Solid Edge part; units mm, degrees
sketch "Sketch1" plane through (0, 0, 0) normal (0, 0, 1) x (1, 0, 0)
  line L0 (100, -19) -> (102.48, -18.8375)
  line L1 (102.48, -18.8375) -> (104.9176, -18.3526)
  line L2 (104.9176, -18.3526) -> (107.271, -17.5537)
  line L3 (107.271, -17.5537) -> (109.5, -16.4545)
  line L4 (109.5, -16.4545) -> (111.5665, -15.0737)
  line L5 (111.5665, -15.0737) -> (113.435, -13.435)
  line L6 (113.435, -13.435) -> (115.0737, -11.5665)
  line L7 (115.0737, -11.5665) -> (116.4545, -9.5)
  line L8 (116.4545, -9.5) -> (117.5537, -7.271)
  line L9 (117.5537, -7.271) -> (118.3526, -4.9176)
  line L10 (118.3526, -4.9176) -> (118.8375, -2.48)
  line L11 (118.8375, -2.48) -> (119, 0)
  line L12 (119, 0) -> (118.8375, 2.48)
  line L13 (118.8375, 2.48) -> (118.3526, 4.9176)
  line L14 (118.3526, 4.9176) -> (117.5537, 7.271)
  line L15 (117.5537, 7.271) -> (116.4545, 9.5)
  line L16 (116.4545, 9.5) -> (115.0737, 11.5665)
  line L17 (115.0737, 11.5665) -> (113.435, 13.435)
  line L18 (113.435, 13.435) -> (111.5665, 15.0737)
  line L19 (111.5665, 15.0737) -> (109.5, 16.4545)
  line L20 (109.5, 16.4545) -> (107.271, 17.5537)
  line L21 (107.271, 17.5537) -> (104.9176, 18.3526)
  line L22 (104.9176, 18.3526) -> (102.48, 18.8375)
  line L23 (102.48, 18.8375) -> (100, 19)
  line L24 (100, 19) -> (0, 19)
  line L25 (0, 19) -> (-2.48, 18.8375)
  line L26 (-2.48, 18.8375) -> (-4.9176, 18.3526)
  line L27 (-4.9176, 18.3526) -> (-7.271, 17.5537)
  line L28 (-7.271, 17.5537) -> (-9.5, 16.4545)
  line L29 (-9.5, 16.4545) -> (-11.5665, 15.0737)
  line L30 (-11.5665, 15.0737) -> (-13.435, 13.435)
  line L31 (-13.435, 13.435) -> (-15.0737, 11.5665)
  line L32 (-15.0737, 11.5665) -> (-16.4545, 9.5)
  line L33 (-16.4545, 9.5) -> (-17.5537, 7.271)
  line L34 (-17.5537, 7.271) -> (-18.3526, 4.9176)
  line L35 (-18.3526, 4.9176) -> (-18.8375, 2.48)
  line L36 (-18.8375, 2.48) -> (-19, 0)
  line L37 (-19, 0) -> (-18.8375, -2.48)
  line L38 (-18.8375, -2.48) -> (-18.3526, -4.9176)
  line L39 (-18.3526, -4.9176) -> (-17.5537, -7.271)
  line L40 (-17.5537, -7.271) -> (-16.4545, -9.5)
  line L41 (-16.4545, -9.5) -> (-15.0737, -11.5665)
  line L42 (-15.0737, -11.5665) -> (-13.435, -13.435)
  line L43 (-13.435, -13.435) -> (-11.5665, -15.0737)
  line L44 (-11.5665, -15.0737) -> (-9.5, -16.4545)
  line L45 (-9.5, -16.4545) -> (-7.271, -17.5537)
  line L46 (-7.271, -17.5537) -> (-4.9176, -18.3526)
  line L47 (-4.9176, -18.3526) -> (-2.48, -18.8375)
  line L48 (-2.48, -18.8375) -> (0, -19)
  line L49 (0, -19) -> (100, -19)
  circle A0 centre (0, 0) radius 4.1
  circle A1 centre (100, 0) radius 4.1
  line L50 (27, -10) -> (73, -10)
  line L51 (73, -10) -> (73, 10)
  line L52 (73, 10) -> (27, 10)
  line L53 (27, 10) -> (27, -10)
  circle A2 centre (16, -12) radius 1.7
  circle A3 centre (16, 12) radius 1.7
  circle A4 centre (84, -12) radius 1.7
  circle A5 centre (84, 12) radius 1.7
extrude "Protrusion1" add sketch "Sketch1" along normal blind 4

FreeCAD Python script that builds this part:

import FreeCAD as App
import Part
import Sketcher

V = App.Vector
Q = App.Units.Quantity

doc = App.newDocument("Part")
body = doc.addObject("PartDesign::Body", "Body")

# Sketch on XY plane
sketch1 = body.newObject("Sketcher::SketchObject", "Sketch")
sketch1.AttachmentSupport = (doc.getObject("XY_Plane"), [""])
sketch1.MapMode = "FlatFace"
sketch1.addGeometry(Part.LineSegment(V(0, -19, 0), V(100, -19, 0)), False)
sketch1.addGeometry(Part.LineSegment(V(100, -19, 0), V(102.48, -18.8375, 0)), False)
sketch1.addGeometry(Part.LineSegment(V(102.48, -18.8375, 0), V(104.9176, -18.3526, 0)), False)
sketch1.addGeometry(Part.LineSegment(V(104.9176, -18.3526, 0), V(107.271, -17.5537, 0)), False)
sketch1.addGeometry(Part.LineSegment(V(107.271, -17.5537, 0), V(109.5, -16.4545, 0)), False)
sketch1.addGeometry(Part.LineSegment(V(109.5, -16.4545, 0), V(111.5665, -15.0737, 0)), False)
sketch1.addGeometry(Part.LineSegment(V(111.5665, -15.0737, 0), V(113.435, -13.435, 0)), False)
sketch1.addGeometry(Part.LineSegment(V(113.435, -13.435, 0), V(115.0737, -11.5665, 0)), False)
sketch1.addGeometry(Part.LineSegment(V(115.0737, -11.5665, 0), V(116.4545, -9.5, 0)), False)
sketch1.addGeometry(Part.LineSegment(V(116.4545, -9.5, 0), V(117.5537, -7.271, 0)), False)
sketch1.addGeometry(Part.LineSegment(V(117.5537, -7.271, 0), V(118.3526, -4.9176, 0)), False)
sketch1.addGeometry(Part.LineSegment(V(118.3526, -4.9176, 0), V(118.8375, -2.48, 0)), False)
sketch1.addGeometry(Part.LineSegment(V(118.8375, -2.48, 0), V(119, 0, 0)), False)
sketch1.addGeometry(Part.LineSegment(V(119, 0, 0), V(118.8375, 2.48, 0)), False)
sketch1.addGeometry(Part.LineSegment(V(118.8375, 2.48, 0), V(118.3526, 4.9176, 0)), False)
sketch1.addGeometry(Part.LineSegment(V(118.3526, 4.9176, 0), V(117.5537, 7.271, 0)), False)
sketch1.addGeometry(Part.LineSegment(V(117.5537, 7.271, 0), V(116.4545, 9.5, 0)), False)
sketch1.addGeometry(Part.LineSegment(V(116.4545, 9.5, 0), V(115.0737, 11.5665, 0)), False)
sketch1.addGeometry(Part.LineSegment(V(115.0737, 11.5665, 0), V(113.435, 13.435, 0)), False)
sketch1.addGeometry(Part.LineSegment(V(113.435, 13.435, 0), V(111.5665, 15.0737, 0)), False)
sketch1.addGeometry(Part.LineSegment(V(111.5665, 15.0737, 0), V(109.5, 16.4545, 0)), False)
sketch1.addGeometry(Part.LineSegment(V(109.5, 16.4545, 0), V(107.271, 17.5537, 0)), False)
sketch1.addGeometry(Part.LineSegment(V(107.271, 17.5537, 0), V(104.9176, 18.3526, 0)), False)
sketch1.addGeometry(Part.LineSegment(V(104.9176, 18.3526, 0), V(102.48, 18.8375, 0)), False)
sketch1.addGeometry(Part.LineSegment(V(102.48, 18.8375, 0), V(100, 19, 0)), False)
sketch1.addGeometry(Part.LineSegment(V(100, 19, 0), V(0, 19, 0)), False)
sketch1.addGeometry(Part.LineSegment(V(0, 19, 0), V(-2.48, 18.8375, 0)), False)
sketch1.addGeometry(Part.LineSegment(V(-2.48, 18.8375, 0), V(-4.9176, 18.3526, 0)), False)
sketch1.addGeometry(Part.LineSegment(V(-4.9176, 18.3526, 0), V(-7.271, 17.5537, 0)), False)
sketch1.addGeometry(Part.LineSegment(V(-7.271, 17.5537, 0), V(-9.5, 16.4545, 0)), False)
sketch1.addGeometry(Part.LineSegment(V(-9.5, 16.4545, 0), V(-11.5665, 15.0737, 0)), False)
sketch1.addGeometry(Part.LineSegment(V(-11.5665, 15.0737, 0), V(-13.435, 13.435, 0)), False)
sketch1.addGeometry(Part.LineSegment(V(-13.435, 13.435, 0), V(-15.0737, 11.5665, 0)), False)
sketch1.addGeometry(Part.LineSegment(V(-15.0737, 11.5665, 0), V(-16.4545, 9.5, 0)), False)
sketch1.addGeometry(Part.LineSegment(V(-16.4545, 9.5, 0), V(-17.5537, 7.271, 0)), False)
sketch1.addGeometry(Part.LineSegment(V(-17.5537, 7.271, 0), V(-18.3526, 4.9176, 0)), False)
sketch1.addGeometry(Part.LineSegment(V(-18.3526, 4.9176, 0), V(-18.8375, 2.48, 0)), False)
sketch1.addGeometry(Part.LineSegment(V(-18.8375, 2.48, 0), V(-19, 0, 0)), False)
sketch1.addGeometry(Part.LineSegment(V(-19, 0, 0), V(-18.8375, -2.48, 0)), False)
sketch1.addGeometry(Part.LineSegment(V(-18.8375, -2.48, 0), V(-18.3526, -4.9176, 0)), False)
sketch1.addGeometry(Part.LineSegment(V(-18.3526, -4.9176, 0), V(-17.5537, -7.271, 0)), False)
sketch1.addGeometry(Part.LineSegment(V(-17.5537, -7.271, 0), V(-16.4545, -9.5, 0)), False)
sketch1.addGeometry(Part.LineSegment(V(-16.4545, -9.5, 0), V(-15.0737, -11.5665, 0)), False)
sketch1.addGeometry(Part.LineSegment(V(-15.0737, -11.5665, 0), V(-13.435, -13.435, 0)), False)
sketch1.addGeometry(Part.LineSegment(V(-13.435, -13.435, 0), V(-11.5665, -15.0737, 0)), False)
sketch1.addGeometry(Part.LineSegment(V(-11.5665, -15.0737, 0), V(-9.5, -16.4545, 0)), False)
sketch1.addGeometry(Part.LineSegment(V(-9.5, -16.4545, 0), V(-7.271, -17.5537, 0)), False)
sketch1.addGeometry(Part.LineSegment(V(-7.271, -17.5537, 0), V(-4.9176, -18.3526, 0)), False)
sketch1.addGeometry(Part.LineSegment(V(-4.9176, -18.3526, 0), V(-2.48, -18.8375, 0)), False)
sketch1.addGeometry(Part.LineSegment(V(-2.48, -18.8375, 0), V(0, -19, 0)), False)
sketch1.addGeometry(Part.Circle(V(16, -12, 0), V(0, 0, 1), 1.7), False)
sketch1.addGeometry(Part.Circle(V(84, -12, 0), V(0, 0, 1), 1.7), False)
sketch1.addGeometry(Part.Circle(V(0, 0, 0), V(0, 0, 1), 4.1), False)
sketch1.addGeometry(Part.Circle(V(16, 12, 0), V(0, 0, 1), 1.7), False)
sketch1.addGeometry(Part.LineSegment(V(73, -10, 0), V(27, -10, 0)), False)
sketch1.addGeometry(Part.LineSegment(V(27, -10, 0), V(27, 10, 0)), False)
sketch1.addGeometry(Part.LineSegment(V(27, 10, 0), V(73, 10, 0)), False)
sketch1.addGeometry(Part.LineSegment(V(73, 10, 0), V(73, -10, 0)), False)
sketch1.addGeometry(Part.Circle(V(100, 0, 0), V(0, 0, 1), 4.1), False)
sketch1.addGeometry(Part.Circle(V(84, 12, 0), V(0, 0, 1), 1.7), False)
sketch1.addConstraint(Sketcher.Constraint("Coincident", 0, 2, 1, 1))
sketch1.addConstraint(Sketcher.Constraint("Coincident", 1, 2, 2, 1))
sketch1.addConstraint(Sketcher.Constraint("Coincident", 2, 2, 3, 1))
sketch1.addConstraint(Sketcher.Constraint("Coincident", 3, 2, 4, 1))
sketch1.addConstraint(Sketcher.Constraint("Coincident", 4, 2, 5, 1))
sketch1.addConstraint(Sketcher.Constraint("Coincident", 5, 2, 6, 1))
sketch1.addConstraint(Sketcher.Constraint("Coincident", 6, 2, 7, 1))
sketch1.addConstraint(Sketcher.Constraint("Coincident", 7, 2, 8, 1))
sketch1.addConstraint(Sketcher.Constraint("Coincident", 8, 2, 9, 1))
sketch1.addConstraint(Sketcher.Constraint("Coincident", 9, 2, 10, 1))
sketch1.addConstraint(Sketcher.Constraint("Coincident", 10, 2, 11, 1))
sketch1.addConstraint(Sketcher.Constraint("Coincident", 11, 2, 12, 1))
sketch1.addConstraint(Sketcher.Constraint("Coincident", 12, 2, 13, 1))
sketch1.addConstraint(Sketcher.Constraint("Coincident", 13, 2, 14, 1))
sketch1.addConstraint(Sketcher.Constraint("Coincident", 14, 2, 15, 1))
sketch1.addConstraint(Sketcher.Constraint("Coincident", 15, 2, 16, 1))
sketch1.addConstraint(Sketcher.Constraint("Coincident", 16, 2, 17, 1))
sketch1.addConstraint(Sketcher.Constraint("Coincident", 17, 2, 18, 1))
sketch1.addConstraint(Sketcher.Constraint("Coincident", 18, 2, 19, 1))
sketch1.addConstraint(Sketcher.Constraint("Coincident", 19, 2, 20, 1))
sketch1.addConstraint(Sketcher.Constraint("Coincident", 20, 2, 21, 1))
sketch1.addConstraint(Sketcher.Constraint("Coincident", 21, 2, 22, 1))
sketch1.addConstraint(Sketcher.Constraint("Coincident", 22, 2, 23, 1))
sketch1.addConstraint(Sketcher.Constraint("Coincident", 23, 2, 24, 1))
sketch1.addConstraint(Sketcher.Constraint("Coincident", 24, 2, 25, 1))
sketch1.addConstraint(Sketcher.Constraint("Coincident", 25, 2, 26, 1))
sketch1.addConstraint(Sketcher.Constraint("Coincident", 26, 2, 27, 1))
sketch1.addConstraint(Sketcher.Constraint("Coincident", 27, 2, 28, 1))
sketch1.addConstraint(Sketcher.Constraint("Coincident", 28, 2, 29, 1))
sketch1.addConstraint(Sketcher.Constraint("Coincident", 29, 2, 30, 1))
sketch1.addConstraint(Sketcher.Constraint("Coincident", 30, 2, 31, 1))
sketch1.addConstraint(Sketcher.Constraint("Coincident", 31, 2, 32, 1))
sketch1.addConstraint(Sketcher.Constraint("Coincident", 32, 2, 33, 1))
sketch1.addConstraint(Sketcher.Constraint("Coincident", 33, 2, 34, 1))
sketch1.addConstraint(Sketcher.Constraint("Coincident", 34, 2, 35, 1))
sketch1.addConstraint(Sketcher.Constraint("Coincident", 35, 2, 36, 1))
sketch1.addConstraint(Sketcher.Constraint("Coincident", 36, 2, 37, 1))
sketch1.addConstraint(Sketcher.Constraint("Coincident", 37, 2, 38, 1))
sketch1.addConstraint(Sketcher.Constraint("Coincident", 38, 2, 39, 1))
sketch1.addConstraint(Sketcher.Constraint("Coincident", 39, 2, 40, 1))
sketch1.addConstraint(Sketcher.Constraint("Coincident", 40, 2, 41, 1))
sketch1.addConstraint(Sketcher.Constraint("Coincident", 41, 2, 42, 1))
sketch1.addConstraint(Sketcher.Constraint("Coincident", 42, 2, 43, 1))
sketch1.addConstraint(Sketcher.Constraint("Coincident", 43, 2, 44, 1))
sketch1.addConstraint(Sketcher.Constraint("Coincident", 44, 2, 45, 1))
sketch1.addConstraint(Sketcher.Constraint("Coincident", 45, 2, 46, 1))
sketch1.addConstraint(Sketcher.Constraint("Coincident", 46, 2, 47, 1))
sketch1.addConstraint(Sketcher.Constraint("Coincident", 47, 2, 48, 1))
sketch1.addConstraint(Sketcher.Constraint("Coincident", 48, 2, 49, 1))
sketch1.addConstraint(Sketcher.Constraint("Coincident", 49, 2, 0, 1))
sketch1.addConstraint(Sketcher.Constraint("Coincident", 54, 2, 55, 1))
sketch1.addConstraint(Sketcher.Constraint("Coincident", 55, 2, 56, 1))
sketch1.addConstraint(Sketcher.Constraint("Coincident", 56, 2, 57, 1))
sketch1.addConstraint(Sketcher.Constraint("Coincident", 57, 2, 54, 1))
sketch1.addConstraint(Sketcher.Constraint("Horizontal", 0))
sketch1.addConstraint(Sketcher.Constraint("Horizontal", 25))
sketch1.addConstraint(Sketcher.Constraint("Horizontal", 54))
sketch1.addConstraint(Sketcher.Constraint("Vertical", 55))
sketch1.addConstraint(Sketcher.Constraint("Horizontal", 56))
sketch1.addConstraint(Sketcher.Constraint("Vertical", 57))
sketch1.addConstraint(Sketcher.Constraint("Coincident", 52, 3, -1, 1))
sketch1.addConstraint(Sketcher.Constraint("Equal", 50, 51))
sketch1.addConstraint(Sketcher.Constraint("Equal", 51, 53))
sketch1.addConstraint(Sketcher.Constraint("Equal", 52, 58))
sketch1.addConstraint(Sketcher.Constraint("Equal", 53, 59))
sketch1.addConstraint(Sketcher.Constraint("Symmetric", 25, 2, 49, 2, -1, 1))
sketch1.addConstraint(Sketcher.Constraint("Symmetric", 50, 3, 53, 3, -1))
sketch1.addConstraint(Sketcher.Constraint("Symmetric", 51, 3, 59, 3, -1))
sketch1.addConstraint(Sketcher.Constraint("Symmetric", 11, 2, 13, 2, -1))
sketch1.addConstraint(Sketcher.Constraint("Symmetric", 10, 2, 14, 2, -1))
sketch1.addConstraint(Sketcher.Constraint("Symmetric", 9, 2, 15, 2, -1))
sketch1.addConstraint(Sketcher.Constraint("Symmetric", 8, 2, 16, 2, -1))
sketch1.addConstraint(Sketcher.Constraint("Symmetric", 7, 2, 17, 2, -1))
sketch1.addConstraint(Sketcher.Constraint("Symmetric", 6, 2, 18, 2, -1))
sketch1.addConstraint(Sketcher.Constraint("Symmetric", 5, 2, 19, 2, -1))
sketch1.addConstraint(Sketcher.Constraint("Symmetric", 4, 2, 20, 2, -1))
sketch1.addConstraint(Sketcher.Constraint("Symmetric", 3, 2, 21, 2, -1))
sketch1.addConstraint(Sketcher.Constraint("Symmetric", 2, 2, 22, 2, -1))
sketch1.addConstraint(Sketcher.Constraint("Symmetric", 1, 2, 23, 2, -1))
sketch1.addConstraint(Sketcher.Constraint("Symmetric", 36, 2, 38, 2, -1))
sketch1.addConstraint(Sketcher.Constraint("Symmetric", 35, 2, 39, 2, -1))
sketch1.addConstraint(Sketcher.Constraint("Symmetric", 34, 2, 40, 2, -1))
sketch1.addConstraint(Sketcher.Constraint("Symmetric", 33, 2, 41, 2, -1))
sketch1.addConstraint(Sketcher.Constraint("Symmetric", 32, 2, 42, 2, -1))
sketch1.addConstraint(Sketcher.Constraint("Symmetric", 31, 2, 43, 2, -1))
sketch1.addConstraint(Sketcher.Constraint("Symmetric", 30, 2, 44, 2, -1))
sketch1.addConstraint(Sketcher.Constraint("Symmetric", 29, 2, 45, 2, -1))
sketch1.addConstraint(Sketcher.Constraint("Symmetric", 28, 2, 46, 2, -1))
sketch1.addConstraint(Sketcher.Constraint("Symmetric", 27, 2, 47, 2, -1))
sketch1.addConstraint(Sketcher.Constraint("Symmetric", 26, 2, 48, 2, -1))
sketch1.addConstraint(Sketcher.Constraint("PointOnObject", 58, 3, -1))
sketch1.addConstraint(Sketcher.Constraint("PointOnObject", 12, 2, -1))
sketch1.addConstraint(Sketcher.Constraint("PointOnObject", 25, 2, -2))
sketch1.addConstraint(Sketcher.Constraint("PointOnObject", 37, 2, -1))
sketch1.addConstraint(Sketcher.Constraint("Perpendicular", 1, 13))
sketch1.addConstraint(Sketcher.Constraint("Perpendicular", 2, 14))
sketch1.addConstraint(Sketcher.Constraint("Perpendicular", 3, 15))
sketch1.addConstraint(Sketcher.Constraint("Perpendicular", 4, 16))
sketch1.addConstraint(Sketcher.Constraint("Perpendicular", 5, 17))
sketch1.addConstraint(Sketcher.Constraint("Perpendicular", 6, 18))
sketch1.addConstraint(Sketcher.Constraint("Perpendicular", 12, 24))
sketch1.addConstraint(Sketcher.Constraint("Perpendicular", 13, 26))
sketch1.addConstraint(Sketcher.Constraint("Perpendicular", 14, 27))
sketch1.addConstraint(Sketcher.Constraint("Perpendicular", 15, 28))
sketch1.addConstraint(Sketcher.Constraint("Perpendicular", 16, 29))
sketch1.addConstraint(Sketcher.Constraint("Perpendicular", 17, 30))
sketch1.addConstraint(Sketcher.Constraint("Perpendicular", 18, 31))
sketch1.addConstraint(Sketcher.Constraint("Perpendicular", 19, 32))
sketch1.addConstraint(Sketcher.Constraint("Perpendicular", 20, 33))
sketch1.addConstraint(Sketcher.Constraint("Perpendicular", 21, 34))
sketch1.addConstraint(Sketcher.Constraint("Perpendicular", 22, 35))
sketch1.addConstraint(Sketcher.Constraint("Perpendicular", 23, 36))
sketch1.addConstraint(Sketcher.Constraint("Perpendicular", 24, 37))
sketch1.addConstraint(Sketcher.Constraint("Horizontal", 50, 3, 51, 3))
sketch1.addConstraint(Sketcher.Constraint("Horizontal", 23, 2, 26, 2))
sketch1.addConstraint(Sketcher.Constraint("Horizontal", 22, 2, 27, 2))
sketch1.addConstraint(Sketcher.Constraint("Horizontal", 21, 2, 28, 2))
sketch1.addConstraint(Sketcher.Constraint("Horizontal", 20, 2, 29, 2))
sketch1.addConstraint(Sketcher.Constraint("Horizontal", 19, 2, 30, 2))
sketch1.addConstraint(Sketcher.Constraint("Horizontal", 18, 2, 31, 2))
sketch1.addConstraint(Sketcher.Constraint("Horizontal", 17, 2, 32, 2))
sketch1.addConstraint(Sketcher.Constraint("Horizontal", 16, 2, 33, 2))
sketch1.addConstraint(Sketcher.Constraint("Horizontal", 15, 2, 34, 2))
sketch1.addConstraint(Sketcher.Constraint("Horizontal", 14, 2, 35, 2))
sketch1.addConstraint(Sketcher.Constraint("Horizontal", 13, 2, 36, 2))
sketch1.addConstraint(Sketcher.Constraint("Vertical", 58, 3, 0, 2))
sketch1.addConstraint(Sketcher.Constraint("Equal", 1, 2))
sketch1.addConstraint(Sketcher.Constraint("Equal", 2, 3))
sketch1.addConstraint(Sketcher.Constraint("Equal", 3, 4))
sketch1.addConstraint(Sketcher.Constraint("Equal", 4, 5))
sketch1.addConstraint(Sketcher.Constraint("Equal", 5, 6))
sketch1.addConstraint(Sketcher.Constraint("Equal", 6, 7))
sketch1.addConstraint(Sketcher.Constraint("Equal", 7, 8))
sketch1.addConstraint(Sketcher.Constraint("Equal", 8, 9))
sketch1.addConstraint(Sketcher.Constraint("Equal", 9, 10))
sketch1.addConstraint(Sketcher.Constraint("Equal", 10, 11))
sketch1.addConstraint(Sketcher.Constraint("Equal", 11, 12))
sketch1.addConstraint(Sketcher.Constraint("Diameter", 50, 3.4))
sketch1.addConstraint(Sketcher.Constraint("Diameter", 52, 8.2))
sketch1.addConstraint(Sketcher.Constraint("DistanceX", 0, 1, 0, 2, 100.0))
sketch1.addConstraint(Sketcher.Constraint("DistanceX", 54, 2, 54, 1, 46.0))
sketch1.addConstraint(Sketcher.Constraint("DistanceY", 55, 1, 55, 2, 20.0))
sketch1.addConstraint(Sketcher.Constraint("DistanceX", -1, 1, 50, 3, 16.0))
sketch1.addConstraint(Sketcher.Constraint("DistanceY", 50, 3, -1, 1, 12.0))
sketch1.addConstraint(Sketcher.Constraint("DistanceX", -1, 1, 51, 3, 84.0))
sketch1.addConstraint(Sketcher.Constraint("DistanceY", 0, 2, -1, 1, 19.0))
sketch1.addConstraint(Sketcher.Constraint("DistanceX", -1, 1, 54, 2, 27.0))
sketch1.addConstraint(Sketcher.Constraint("DistanceY", 54, 2, -1, 1, 10.0))
sketch1.addConstraint(Sketcher.Constraint("DistanceX", -1, 1, 4, 2, 109.5))
sketch1.addConstraint(Sketcher.Constraint("Angle", 1, Q("3.749 deg")))
sketch1.addConstraint(Sketcher.Constraint("Angle", 2, Q("11.2507 deg")))
sketch1.addConstraint(Sketcher.Constraint("Angle", 3, Q("18.7506 deg")))
sketch1.addConstraint(Sketcher.Constraint("Angle", 4, Q("26.2496 deg")))
sketch1.addConstraint(Sketcher.Constraint("Angle", 5, Q("33.7502 deg")))
pad1 = body.newObject("PartDesign::Pad", "Pad")
pad1.Profile = sketch1
pad1.Length = 4

doc.recompute()
